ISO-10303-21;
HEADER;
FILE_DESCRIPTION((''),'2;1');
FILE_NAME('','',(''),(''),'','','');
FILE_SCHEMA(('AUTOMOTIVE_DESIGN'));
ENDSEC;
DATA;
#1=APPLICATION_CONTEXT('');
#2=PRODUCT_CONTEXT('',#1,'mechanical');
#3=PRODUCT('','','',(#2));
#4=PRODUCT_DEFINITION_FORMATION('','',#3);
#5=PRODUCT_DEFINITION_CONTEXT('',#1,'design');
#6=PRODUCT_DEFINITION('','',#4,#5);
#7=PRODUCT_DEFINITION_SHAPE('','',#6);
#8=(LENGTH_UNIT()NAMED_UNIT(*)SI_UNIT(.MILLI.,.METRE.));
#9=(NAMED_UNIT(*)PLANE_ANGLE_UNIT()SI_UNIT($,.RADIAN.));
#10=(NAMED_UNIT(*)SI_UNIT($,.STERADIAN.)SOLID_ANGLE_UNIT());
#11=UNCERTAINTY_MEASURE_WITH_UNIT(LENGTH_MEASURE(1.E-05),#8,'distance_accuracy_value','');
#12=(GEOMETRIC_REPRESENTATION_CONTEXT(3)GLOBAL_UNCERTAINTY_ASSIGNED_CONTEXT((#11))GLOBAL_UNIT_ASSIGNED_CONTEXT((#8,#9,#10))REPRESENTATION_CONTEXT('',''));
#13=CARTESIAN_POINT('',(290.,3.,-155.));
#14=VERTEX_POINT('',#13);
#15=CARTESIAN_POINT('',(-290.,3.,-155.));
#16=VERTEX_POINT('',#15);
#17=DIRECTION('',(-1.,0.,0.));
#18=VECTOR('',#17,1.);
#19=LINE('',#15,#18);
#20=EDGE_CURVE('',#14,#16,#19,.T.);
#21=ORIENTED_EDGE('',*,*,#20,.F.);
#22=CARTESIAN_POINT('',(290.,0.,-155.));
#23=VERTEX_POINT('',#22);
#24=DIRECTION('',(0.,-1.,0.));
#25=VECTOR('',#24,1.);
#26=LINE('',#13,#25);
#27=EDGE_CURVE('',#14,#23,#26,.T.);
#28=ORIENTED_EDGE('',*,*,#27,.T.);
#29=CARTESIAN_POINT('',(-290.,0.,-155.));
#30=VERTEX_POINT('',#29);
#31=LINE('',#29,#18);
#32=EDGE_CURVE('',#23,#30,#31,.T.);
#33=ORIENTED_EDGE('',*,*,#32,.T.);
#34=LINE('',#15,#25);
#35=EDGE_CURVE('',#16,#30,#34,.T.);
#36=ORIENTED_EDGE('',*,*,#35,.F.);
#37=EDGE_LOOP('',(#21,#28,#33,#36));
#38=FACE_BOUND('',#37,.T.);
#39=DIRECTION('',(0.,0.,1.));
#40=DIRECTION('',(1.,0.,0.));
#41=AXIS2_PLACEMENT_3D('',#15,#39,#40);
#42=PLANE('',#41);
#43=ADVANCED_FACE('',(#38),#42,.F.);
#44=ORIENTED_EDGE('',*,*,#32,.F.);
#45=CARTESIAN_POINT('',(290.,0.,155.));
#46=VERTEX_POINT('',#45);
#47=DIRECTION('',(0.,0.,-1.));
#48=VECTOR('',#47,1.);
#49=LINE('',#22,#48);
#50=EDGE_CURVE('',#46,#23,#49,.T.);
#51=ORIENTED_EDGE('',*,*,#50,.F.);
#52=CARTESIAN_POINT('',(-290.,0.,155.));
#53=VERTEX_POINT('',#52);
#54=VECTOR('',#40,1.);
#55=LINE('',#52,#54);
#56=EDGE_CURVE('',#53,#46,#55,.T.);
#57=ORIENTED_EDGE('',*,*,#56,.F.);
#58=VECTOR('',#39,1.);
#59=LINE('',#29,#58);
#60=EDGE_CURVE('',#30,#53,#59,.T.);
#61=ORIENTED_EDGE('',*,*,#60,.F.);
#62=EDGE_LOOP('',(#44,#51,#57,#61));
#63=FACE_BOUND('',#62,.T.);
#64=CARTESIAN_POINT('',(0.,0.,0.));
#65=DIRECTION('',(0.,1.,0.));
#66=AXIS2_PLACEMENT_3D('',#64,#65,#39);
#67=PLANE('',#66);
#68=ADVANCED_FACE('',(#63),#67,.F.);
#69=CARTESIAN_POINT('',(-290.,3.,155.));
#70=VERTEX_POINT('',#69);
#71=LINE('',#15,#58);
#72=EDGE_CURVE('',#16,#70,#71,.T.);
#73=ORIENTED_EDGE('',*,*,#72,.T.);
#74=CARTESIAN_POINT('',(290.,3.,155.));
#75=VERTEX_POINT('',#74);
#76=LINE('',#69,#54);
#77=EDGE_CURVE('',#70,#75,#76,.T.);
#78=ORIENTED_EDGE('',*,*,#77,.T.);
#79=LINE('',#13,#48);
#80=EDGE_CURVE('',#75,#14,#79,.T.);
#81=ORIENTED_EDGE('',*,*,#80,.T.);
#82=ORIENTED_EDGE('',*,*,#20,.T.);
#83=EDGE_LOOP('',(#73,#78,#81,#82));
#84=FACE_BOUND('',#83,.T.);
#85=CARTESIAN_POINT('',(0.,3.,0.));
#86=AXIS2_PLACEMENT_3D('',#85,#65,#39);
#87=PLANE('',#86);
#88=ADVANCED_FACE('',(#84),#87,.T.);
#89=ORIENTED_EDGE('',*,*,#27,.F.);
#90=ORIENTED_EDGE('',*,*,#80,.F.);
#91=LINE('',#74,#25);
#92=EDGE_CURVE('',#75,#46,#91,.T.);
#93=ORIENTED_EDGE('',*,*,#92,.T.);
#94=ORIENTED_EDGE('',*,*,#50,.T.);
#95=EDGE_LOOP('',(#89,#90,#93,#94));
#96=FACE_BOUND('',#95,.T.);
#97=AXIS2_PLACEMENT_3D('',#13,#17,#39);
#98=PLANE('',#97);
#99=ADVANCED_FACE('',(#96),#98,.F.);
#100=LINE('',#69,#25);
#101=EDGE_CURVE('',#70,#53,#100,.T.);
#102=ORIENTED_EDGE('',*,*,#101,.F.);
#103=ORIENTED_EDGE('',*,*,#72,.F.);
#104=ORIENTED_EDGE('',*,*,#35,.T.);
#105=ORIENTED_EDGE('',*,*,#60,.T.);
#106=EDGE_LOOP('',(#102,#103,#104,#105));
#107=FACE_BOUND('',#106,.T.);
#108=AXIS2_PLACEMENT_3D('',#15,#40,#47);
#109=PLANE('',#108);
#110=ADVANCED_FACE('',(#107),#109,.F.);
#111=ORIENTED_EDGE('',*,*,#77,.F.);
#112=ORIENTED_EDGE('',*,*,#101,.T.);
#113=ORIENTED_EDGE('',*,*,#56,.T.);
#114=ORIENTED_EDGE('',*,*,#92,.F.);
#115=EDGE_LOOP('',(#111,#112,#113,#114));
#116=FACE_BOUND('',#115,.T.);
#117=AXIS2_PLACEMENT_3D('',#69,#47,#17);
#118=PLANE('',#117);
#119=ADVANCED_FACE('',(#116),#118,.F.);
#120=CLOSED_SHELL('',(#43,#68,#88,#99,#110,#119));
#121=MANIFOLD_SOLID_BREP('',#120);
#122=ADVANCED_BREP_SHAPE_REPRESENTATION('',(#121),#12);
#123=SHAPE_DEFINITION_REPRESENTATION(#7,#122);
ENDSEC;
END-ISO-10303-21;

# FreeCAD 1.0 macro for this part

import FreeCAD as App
import Part
import Sketcher

V = App.Vector
Q = App.Units.Quantity

doc = App.newDocument("Part")
body = doc.addObject("PartDesign::Body", "Body")

# Sketch on XZ plane
sketch1 = body.newObject("Sketcher::SketchObject", "Sketch")
sketch1.AttachmentSupport = (doc.getObject("XZ_Plane"), [""])
sketch1.MapMode = "FlatFace"
sketch1.addGeometry(Part.LineSegment(V(-290, -155, 0), V(-290, 155, 0)), False)
sketch1.addGeometry(Part.LineSegment(V(-290, 155, 0), V(290, 155, 0)), False)
sketch1.addGeometry(Part.LineSegment(V(290, 155, 0), V(290, -155, 0)), False)
sketch1.addGeometry(Part.LineSegment(V(290, -155, 0), V(-290, -155, 0)), False)
sketch1.addConstraint(Sketcher.Constraint("Coincident", 0, 2, 1, 1))
sketch1.addConstraint(Sketcher.Constraint("Coincident", 1, 2, 2, 1))
sketch1.addConstraint(Sketcher.Constraint("Coincident", 2, 2, 3, 1))
sketch1.addConstraint(Sketcher.Constraint("Coincident", 3, 2, 0, 1))
sketch1.addConstraint(Sketcher.Constraint("Vertical", 0))
sketch1.addConstraint(Sketcher.Constraint("Horizontal", 1))
sketch1.addConstraint(Sketcher.Constraint("Vertical", 2))
sketch1.addConstraint(Sketcher.Constraint("Horizontal", 3))
sketch1.addConstraint(Sketcher.Constraint("Symmetric", 0, 2, 2, 2, -1, 1))
sketch1.addConstraint(Sketcher.Constraint("DistanceX", 1, 1, 1, 2, Q("580 mm")))
sketch1.addConstraint(Sketcher.Constraint("DistanceY", 0, 1, 0, 2, Q("310 mm")))
pad1 = body.newObject("PartDesign::Pad", "Pad")
pad1.Profile = sketch1
pad1.Length = 3
pad1.Reversed = True

doc.recompute()
